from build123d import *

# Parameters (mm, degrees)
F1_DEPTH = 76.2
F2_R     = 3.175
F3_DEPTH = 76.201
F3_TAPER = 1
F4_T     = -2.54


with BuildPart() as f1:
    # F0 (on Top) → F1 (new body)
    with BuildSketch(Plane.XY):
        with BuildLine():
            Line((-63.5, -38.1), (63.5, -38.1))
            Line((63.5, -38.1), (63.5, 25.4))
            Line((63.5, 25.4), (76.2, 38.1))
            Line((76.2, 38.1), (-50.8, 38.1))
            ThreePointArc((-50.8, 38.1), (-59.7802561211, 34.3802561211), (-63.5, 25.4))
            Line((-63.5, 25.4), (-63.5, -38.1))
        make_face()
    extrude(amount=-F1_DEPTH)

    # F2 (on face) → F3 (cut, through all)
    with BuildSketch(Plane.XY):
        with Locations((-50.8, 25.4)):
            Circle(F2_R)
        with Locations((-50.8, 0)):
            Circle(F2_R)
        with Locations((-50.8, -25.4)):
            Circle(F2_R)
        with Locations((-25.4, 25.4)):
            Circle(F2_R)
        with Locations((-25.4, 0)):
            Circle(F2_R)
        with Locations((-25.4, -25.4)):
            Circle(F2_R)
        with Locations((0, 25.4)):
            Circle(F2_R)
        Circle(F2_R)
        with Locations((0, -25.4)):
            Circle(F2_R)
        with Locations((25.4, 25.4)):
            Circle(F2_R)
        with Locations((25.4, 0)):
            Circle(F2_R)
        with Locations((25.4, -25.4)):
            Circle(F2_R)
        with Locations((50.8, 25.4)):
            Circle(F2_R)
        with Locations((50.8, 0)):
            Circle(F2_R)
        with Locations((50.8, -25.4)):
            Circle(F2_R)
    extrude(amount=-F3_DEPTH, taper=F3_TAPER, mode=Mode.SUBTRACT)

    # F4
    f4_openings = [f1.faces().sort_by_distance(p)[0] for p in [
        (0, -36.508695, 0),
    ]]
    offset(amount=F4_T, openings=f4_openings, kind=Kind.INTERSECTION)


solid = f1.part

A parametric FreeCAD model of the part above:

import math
import FreeCAD as App
import Part
import Sketcher
Q = App.Units.Quantity


def faces_at(feature, points):
    """Names of the faces that lie closest to the given points."""
    faces = feature.Shape.Faces
    near = lambda p: min(range(len(faces)), key=lambda i: faces[i].distToShape(Part.Vertex(*p))[0])
    return sorted({f"Face{near(p) + 1}" for p in points})

doc = App.newDocument("Part")
body = doc.addObject("PartDesign::Body", "Body")

# Sketch on XY plane
sketch1 = body.newObject("Sketcher::SketchObject", "Sketch")
sketch1.AttachmentSupport = (doc.getObject("XY_Plane"), [""])
sketch1.MapMode = "FlatFace"
sketch1.addGeometry(Part.LineSegment(App.Vector(-64, -38, 0), App.Vector(64, -38, 0)), False)
sketch1.addGeometry(Part.LineSegment(App.Vector(64, -38, 0), App.Vector(64, 25, 0)), False)
sketch1.addGeometry(Part.LineSegment(App.Vector(64, 25, 0), App.Vector(76, 38, 0)), False)
sketch1.addGeometry(Part.LineSegment(App.Vector(76, 38, 0), App.Vector(-51, 38, 0)), False)
sketch1.addGeometry(Part.ArcOfCircle(Part.Circle(App.Vector(-51, 25, 0), App.Vector(0, 0, 1), 13), math.radians(90), math.radians(180)), False)
sketch1.addGeometry(Part.LineSegment(App.Vector(-64, 25, 0), App.Vector(-64, -38, 0)), False)
sketch1.addConstraint(Sketcher.Constraint("Coincident", 0, 2, 1, 1))
sketch1.addConstraint(Sketcher.Constraint("Coincident", 1, 2, 2, 1))
sketch1.addConstraint(Sketcher.Constraint("Coincident", 2, 2, 3, 1))
sketch1.addConstraint(Sketcher.Constraint("Tangent", 3, 2, 4, 1))
sketch1.addConstraint(Sketcher.Constraint("Tangent", 4, 2, 5, 1))
sketch1.addConstraint(Sketcher.Constraint("Coincident", 5, 2, 0, 1))
sketch1.addConstraint(Sketcher.Constraint("Horizontal", 0))
sketch1.addConstraint(Sketcher.Constraint("Vertical", 1))
sketch1.addConstraint(Sketcher.Constraint("Horizontal", 3))
sketch1.addConstraint(Sketcher.Constraint("Vertical", 5))
sketch1.addConstraint(Sketcher.Constraint("Symmetric", 1, 2, 4, 2, -2))
sketch1.addConstraint(Sketcher.Constraint("Equal", 0, 3))
sketch1.addConstraint(Sketcher.Constraint("Radius", 4, Q("0.5 in")))
sketch1.addConstraint(Sketcher.Constraint("DistanceX", 0, 1, 0, 2, Q("5 in")))
sketch1.addConstraint(Sketcher.Constraint("DistanceY", 1, 1, 1, 2, Q("2.5 in")))
sketch1.addConstraint(Sketcher.Constraint("DistanceY", -1, 1, 4, 3, Q("1 in")))
pad1 = body.newObject("PartDesign::Pad", "Pad")
pad1.Profile = sketch1
pad1.Length = Q("3 in")
pad1.Reversed = True

# Sketch on XY plane
sketch2 = body.newObject("Sketcher::SketchObject", "Sketch001")
sketch2.AttachmentSupport = (doc.getObject("XY_Plane"), [""])
sketch2.MapMode = "FlatFace"
sketch2.addGeometry(Part.Circle(App.Vector(-50.8, 25.4, 0), App.Vector(0, 0, 1), 3.2), False)
sketch2.addGeometry(Part.Circle(App.Vector(-50.8, 0, 0), App.Vector(0, 0, 1), 3.2), False)
sketch2.addGeometry(Part.Circle(App.Vector(-50.8, -25.4, 0), App.Vector(0, 0, 1), 3.2), False)
sketch2.addGeometry(Part.Circle(App.Vector(-25.4, 25.4, 0), App.Vector(0, 0, 1), 3.2), False)
sketch2.addGeometry(Part.Circle(App.Vector(-25.4, 0, 0), App.Vector(0, 0, 1), 3.2), False)
sketch2.addGeometry(Part.Circle(App.Vector(-25.4, -25.4, 0), App.Vector(0, 0, 1), 3.2), False)
sketch2.addGeometry(Part.Circle(App.Vector(0, 25.4, 0), App.Vector(0, 0, 1), 3.2), False)
sketch2.addGeometry(Part.Circle(App.Vector(0, 0, 0), App.Vector(0, 0, 1), 3.2), False)
sketch2.addGeometry(Part.Circle(App.Vector(0, -25.4, 0), App.Vector(0, 0, 1), 3.2), False)
sketch2.addGeometry(Part.Circle(App.Vector(25.4, 25.4, 0), App.Vector(0, 0, 1), 3.2), False)
sketch2.addGeometry(Part.Circle(App.Vector(25.4, 0, 0), App.Vector(0, 0, 1), 3.2), False)
sketch2.addGeometry(Part.Circle(App.Vector(25.4, -25.4, 0), App.Vector(0, 0, 1), 3.2), False)
sketch2.addGeometry(Part.Circle(App.Vector(50.8, 25.4, 0), App.Vector(0, 0, 1), 3.2), False)
sketch2.addGeometry(Part.Circle(App.Vector(50.8, 0, 0), App.Vector(0, 0, 1), 3.2), False)
sketch2.addGeometry(Part.Circle(App.Vector(50.8, -25.4, 0), App.Vector(0, 0, 1), 3.2), False)
sketch2.addConstraint(Sketcher.Constraint("Coincident", 7, 3, -1, 1))
sketch2.addConstraint(Sketcher.Constraint("Equal", 0, 1))
sketch2.addConstraint(Sketcher.Constraint("Equal", 1, 2))
sketch2.addConstraint(Sketcher.Constraint("Equal", 2, 3))
sketch2.addConstraint(Sketcher.Constraint("Equal", 3, 4))
sketch2.addConstraint(Sketcher.Constraint("Equal", 4, 5))
sketch2.addConstraint(Sketcher.Constraint("Equal", 5, 6))
sketch2.addConstraint(Sketcher.Constraint("Equal", 6, 7))
sketch2.addConstraint(Sketcher.Constraint("Equal", 7, 8))
sketch2.addConstraint(Sketcher.Constraint("Equal", 8, 9))
sketch2.addConstraint(Sketcher.Constraint("Equal", 9, 10))
sketch2.addConstraint(Sketcher.Constraint("Equal", 10, 11))
sketch2.addConstraint(Sketcher.Constraint("Equal", 11, 12))
sketch2.addConstraint(Sketcher.Constraint("Equal", 12, 13))
sketch2.addConstraint(Sketcher.Constraint("Equal", 13, 14))
sketch2.addConstraint(Sketcher.Constraint("Symmetric", 6, 3, 8, 3, -1, 1))
sketch2.addConstraint(Sketcher.Constraint("Symmetric", 5, 3, 9, 3, -1, 1))
sketch2.addConstraint(Sketcher.Constraint("Symmetric", 4, 3, 10, 3, -1, 1))
sketch2.addConstraint(Sketcher.Constraint("Symmetric", 3, 3, 11, 3, -1, 1))
sketch2.addConstraint(Sketcher.Constraint("Symmetric", 2, 3, 12, 3, -1, 1))
sketch2.addConstraint(Sketcher.Constraint("Symmetric", 1, 3, 13, 3, -1, 1))
sketch2.addConstraint(Sketcher.Constraint("Symmetric", 0, 3, 14, 3, -1, 1))
sketch2.addConstraint(Sketcher.Constraint("Symmetric", 3, 3, 9, 3, -2))
sketch2.addConstraint(Sketcher.Constraint("Symmetric", 0, 3, 12, 3, -2))
sketch2.addConstraint(Sketcher.Constraint("PointOnObject", 1, 3, -1))
sketch2.addConstraint(Sketcher.Constraint("PointOnObject", 4, 3, -1))
sketch2.addConstraint(Sketcher.Constraint("PointOnObject", 6, 3, -2))
sketch2.addConstraint(Sketcher.Constraint("Horizontal", 0, 3, 3, 3))
sketch2.addConstraint(Sketcher.Constraint("Horizontal", 3, 3, 6, 3))
sketch2.addConstraint(Sketcher.Constraint("Vertical", 0, 3, 1, 3))
sketch2.addConstraint(Sketcher.Constraint("Vertical", 3, 3, 4, 3))
sketch2.addConstraint(Sketcher.Constraint("Diameter", 0, Q("0.25 in")))
sketch2.addConstraint(Sketcher.Constraint("DistanceX", 0, 3, -1, 1, Q("2 in")))
sketch2.addConstraint(Sketcher.Constraint("DistanceY", -1, 1, 0, 3, Q("1 in")))
sketch2.addConstraint(Sketcher.Constraint("DistanceX", 3, 3, -1, 1, Q("1 in")))
pocket1 = body.newObject("PartDesign::Pocket", "Pocket")
pocket1.Profile = sketch2
pocket1.Length = 76.201
pocket1.TaperAngle = -1
doc.recompute()

thickness = body.newObject("PartDesign::Thickness", "Thickness")
thickness.Base = (pocket1, faces_at(pocket1, [(6.35, 0, 0)]))
thickness.Value = Q("0.1 in")
thickness.Reversed = True
thickness.Join = "Intersection"

doc.recompute()
